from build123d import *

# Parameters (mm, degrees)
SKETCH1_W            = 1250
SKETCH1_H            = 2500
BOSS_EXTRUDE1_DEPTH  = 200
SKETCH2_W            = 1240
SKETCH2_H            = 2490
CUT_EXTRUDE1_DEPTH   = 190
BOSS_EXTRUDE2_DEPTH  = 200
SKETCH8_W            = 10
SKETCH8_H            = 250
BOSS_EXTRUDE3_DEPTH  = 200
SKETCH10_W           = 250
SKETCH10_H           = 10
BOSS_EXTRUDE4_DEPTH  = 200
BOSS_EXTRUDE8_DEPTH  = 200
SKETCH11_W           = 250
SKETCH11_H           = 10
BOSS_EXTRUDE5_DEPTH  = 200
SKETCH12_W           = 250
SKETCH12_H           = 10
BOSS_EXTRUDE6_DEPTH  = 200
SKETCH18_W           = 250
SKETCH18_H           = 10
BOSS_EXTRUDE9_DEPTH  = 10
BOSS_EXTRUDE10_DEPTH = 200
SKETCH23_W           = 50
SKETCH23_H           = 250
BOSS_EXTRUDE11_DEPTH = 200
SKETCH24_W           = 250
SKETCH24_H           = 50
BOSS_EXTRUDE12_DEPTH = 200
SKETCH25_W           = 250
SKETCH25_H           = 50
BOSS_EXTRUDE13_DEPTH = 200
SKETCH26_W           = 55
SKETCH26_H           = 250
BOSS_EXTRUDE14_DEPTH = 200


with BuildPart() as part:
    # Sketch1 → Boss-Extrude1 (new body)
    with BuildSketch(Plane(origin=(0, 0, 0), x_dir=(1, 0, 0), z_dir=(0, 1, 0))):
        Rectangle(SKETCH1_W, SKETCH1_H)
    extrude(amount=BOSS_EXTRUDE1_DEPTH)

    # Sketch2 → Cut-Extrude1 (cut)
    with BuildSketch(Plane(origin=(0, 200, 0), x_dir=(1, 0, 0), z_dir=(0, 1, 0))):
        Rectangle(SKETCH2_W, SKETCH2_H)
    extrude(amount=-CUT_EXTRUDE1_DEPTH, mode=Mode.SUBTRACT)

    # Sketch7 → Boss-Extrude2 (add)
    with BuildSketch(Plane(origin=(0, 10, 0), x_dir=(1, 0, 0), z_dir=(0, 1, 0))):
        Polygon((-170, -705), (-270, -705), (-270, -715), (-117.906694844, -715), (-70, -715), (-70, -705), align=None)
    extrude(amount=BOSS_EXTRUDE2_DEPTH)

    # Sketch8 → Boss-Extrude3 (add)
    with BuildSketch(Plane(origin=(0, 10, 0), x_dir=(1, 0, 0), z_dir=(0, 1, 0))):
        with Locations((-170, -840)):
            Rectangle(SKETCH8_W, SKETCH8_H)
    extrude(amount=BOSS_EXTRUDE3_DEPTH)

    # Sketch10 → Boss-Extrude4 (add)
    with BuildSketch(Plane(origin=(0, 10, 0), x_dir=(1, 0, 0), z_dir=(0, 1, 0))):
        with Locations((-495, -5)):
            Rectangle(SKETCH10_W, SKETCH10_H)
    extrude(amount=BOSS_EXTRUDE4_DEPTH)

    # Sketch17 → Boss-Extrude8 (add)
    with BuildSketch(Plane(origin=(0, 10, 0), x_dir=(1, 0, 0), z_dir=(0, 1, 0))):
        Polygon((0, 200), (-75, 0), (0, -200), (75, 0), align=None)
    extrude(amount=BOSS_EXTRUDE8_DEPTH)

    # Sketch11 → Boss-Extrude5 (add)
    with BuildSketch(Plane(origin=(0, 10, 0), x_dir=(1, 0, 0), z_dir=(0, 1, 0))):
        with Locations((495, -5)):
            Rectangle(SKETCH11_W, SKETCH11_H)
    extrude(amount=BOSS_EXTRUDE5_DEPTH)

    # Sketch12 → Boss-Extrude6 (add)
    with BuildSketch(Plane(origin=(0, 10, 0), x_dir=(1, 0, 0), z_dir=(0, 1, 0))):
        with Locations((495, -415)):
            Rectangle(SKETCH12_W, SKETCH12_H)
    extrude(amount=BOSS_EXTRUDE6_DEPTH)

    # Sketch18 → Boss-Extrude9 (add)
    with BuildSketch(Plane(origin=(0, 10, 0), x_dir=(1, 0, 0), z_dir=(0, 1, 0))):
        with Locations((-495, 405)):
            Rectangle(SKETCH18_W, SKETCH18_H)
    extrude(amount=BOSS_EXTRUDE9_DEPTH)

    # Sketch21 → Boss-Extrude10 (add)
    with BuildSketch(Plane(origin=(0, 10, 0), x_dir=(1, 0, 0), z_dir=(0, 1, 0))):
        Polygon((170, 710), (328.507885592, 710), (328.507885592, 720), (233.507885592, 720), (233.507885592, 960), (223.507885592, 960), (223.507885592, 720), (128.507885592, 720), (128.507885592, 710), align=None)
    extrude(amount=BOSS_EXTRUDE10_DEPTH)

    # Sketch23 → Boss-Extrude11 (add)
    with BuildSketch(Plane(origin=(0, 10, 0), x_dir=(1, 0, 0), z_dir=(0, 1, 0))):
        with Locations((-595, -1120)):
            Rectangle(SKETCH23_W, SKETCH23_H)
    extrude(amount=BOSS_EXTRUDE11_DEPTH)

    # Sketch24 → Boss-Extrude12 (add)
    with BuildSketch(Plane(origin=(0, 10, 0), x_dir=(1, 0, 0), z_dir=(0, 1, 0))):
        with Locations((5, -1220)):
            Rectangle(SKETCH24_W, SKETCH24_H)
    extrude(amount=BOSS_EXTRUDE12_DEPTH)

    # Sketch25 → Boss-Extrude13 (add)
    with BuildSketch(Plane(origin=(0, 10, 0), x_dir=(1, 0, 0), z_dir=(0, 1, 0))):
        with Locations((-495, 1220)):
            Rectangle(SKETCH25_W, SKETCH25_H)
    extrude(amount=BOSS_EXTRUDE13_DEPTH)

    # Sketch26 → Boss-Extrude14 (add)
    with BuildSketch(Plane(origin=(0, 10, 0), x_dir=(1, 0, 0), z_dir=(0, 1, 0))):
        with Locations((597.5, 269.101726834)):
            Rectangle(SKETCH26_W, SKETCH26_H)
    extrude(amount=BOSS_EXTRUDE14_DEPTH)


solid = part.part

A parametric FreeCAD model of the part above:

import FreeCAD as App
import Part
import Sketcher
from FreeCAD import Vector

doc = App.newDocument("Part")
body = doc.addObject("PartDesign::Body", "Body")

# Sketch on XZ plane
sketch1 = doc.addObject("Sketcher::SketchObject", "Sketch")
body.addObject(sketch1)
sketch1.AttachmentSupport = (doc.XZ_Plane, [""])
sketch1.MapMode = "FlatFace"
sketch1.addGeometry([
    Part.LineSegment(Vector(-625, -1250, 0), Vector(-625, 1250, 0)),
    Part.LineSegment(Vector(-625, 1250, 0), Vector(625, 1250, 0)),
    Part.LineSegment(Vector(625, 1250, 0), Vector(625, -1250, 0)),
    Part.LineSegment(Vector(625, -1250, 0), Vector(-625, -1250, 0)),
], False)
sketch1.addConstraint([
    Sketcher.Constraint("Coincident", 0, 2, 1, 1),
    Sketcher.Constraint("Coincident", 1, 2, 2, 1),
    Sketcher.Constraint("Coincident", 2, 2, 3, 1),
    Sketcher.Constraint("Coincident", 3, 2, 0, 1),
    Sketcher.Constraint("Vertical", 0),
    Sketcher.Constraint("Horizontal", 1),
    Sketcher.Constraint("Vertical", 2),
    Sketcher.Constraint("Horizontal", 3),
    Sketcher.Constraint("Symmetric", 0, 2, 2, 2, -1, 1),
    Sketcher.Constraint("DistanceX", 1, 1, 1, 2, 1250.0),
    Sketcher.Constraint("DistanceY", 0, 1, 0, 2, 2500.0),
])
pad1 = doc.addObject("PartDesign::Pad", "Pad")
body.addObject(pad1)
pad1.Profile = sketch1
pad1.Length = 200
pad1.Reversed = True

# Sketch on XZ plane
sketch2 = doc.addObject("Sketcher::SketchObject", "Sketch001")
body.addObject(sketch2)
sketch2.AttachmentSupport = (doc.XZ_Plane, [""])
sketch2.MapMode = "FlatFace"
sketch2.AttachmentOffset = App.Placement(Vector(0, 0, -200), App.Rotation())
sketch2.addGeometry([
    Part.LineSegment(Vector(-620, -1245, 0), Vector(-620, 1245, 0)),
    Part.LineSegment(Vector(-620, 1245, 0), Vector(620, 1245, 0)),
    Part.LineSegment(Vector(620, 1245, 0), Vector(620, -1245, 0)),
    Part.LineSegment(Vector(620, -1245, 0), Vector(-620, -1245, 0)),
], False)
sketch2.addConstraint([
    Sketcher.Constraint("Coincident", 0, 2, 1, 1),
    Sketcher.Constraint("Coincident", 1, 2, 2, 1),
    Sketcher.Constraint("Coincident", 2, 2, 3, 1),
    Sketcher.Constraint("Coincident", 3, 2, 0, 1),
    Sketcher.Constraint("Vertical", 0),
    Sketcher.Constraint("Horizontal", 1),
    Sketcher.Constraint("Vertical", 2),
    Sketcher.Constraint("Horizontal", 3),
    Sketcher.Constraint("Symmetric", 0, 2, 2, 2, -1, 1),
    Sketcher.Constraint("DistanceX", 1, 1, 1, 2, 1240.0),
    Sketcher.Constraint("DistanceY", 0, 1, 0, 2, 2490.0),
])
pocket1 = doc.addObject("PartDesign::Pocket", "Pocket")
body.addObject(pocket1)
pocket1.Profile = sketch2
pocket1.Length = 190
pocket1.Reversed = True

# Sketch on XZ plane
sketch3 = doc.addObject("Sketcher::SketchObject", "Sketch002")
body.addObject(sketch3)
sketch3.AttachmentSupport = (doc.XZ_Plane, [""])
sketch3.MapMode = "FlatFace"
sketch3.AttachmentOffset = App.Placement(Vector(0, 0, -10), App.Rotation())
sketch3.addGeometry([
    Part.LineSegment(Vector(-270, 705, 0), Vector(-270, 715, 0)),
    Part.LineSegment(Vector(-270, 715, 0), Vector(-70, 715, 0)),
    Part.LineSegment(Vector(-70, 715, 0), Vector(-70, 705, 0)),
    Part.LineSegment(Vector(-70, 705, 0), Vector(-270, 705, 0)),
], False)
sketch3.addConstraint([
    Sketcher.Constraint("Coincident", 0, 2, 1, 1),
    Sketcher.Constraint("Coincident", 1, 2, 2, 1),
    Sketcher.Constraint("Coincident", 2, 2, 3, 1),
    Sketcher.Constraint("Coincident", 3, 2, 0, 1),
    Sketcher.Constraint("Vertical", 0),
    Sketcher.Constraint("Horizontal", 1),
    Sketcher.Constraint("Vertical", 2),
    Sketcher.Constraint("Horizontal", 3),
    Sketcher.Constraint("DistanceX", 1, 1, 1, 2, 200.0),
    Sketcher.Constraint("DistanceY", 0, 1, 0, 2, 10.0),
    Sketcher.Constraint("DistanceX", 0, 2, -1, 1, 270.0),
    Sketcher.Constraint("DistanceY", -1, 1, 0, 2, 715.0),
])
pad2 = doc.addObject("PartDesign::Pad", "Pad001")
body.addObject(pad2)
pad2.Profile = sketch3
pad2.Length = 200
pad2.Reversed = True

# Sketch on XZ plane
sketch4 = doc.addObject("Sketcher::SketchObject", "Sketch003")
body.addObject(sketch4)
sketch4.AttachmentSupport = (doc.XZ_Plane, [""])
sketch4.MapMode = "FlatFace"
sketch4.AttachmentOffset = App.Placement(Vector(0, 0, -10), App.Rotation())
sketch4.addGeometry([
    Part.LineSegment(Vector(-175, 715, 0), Vector(-175, 965, 0)),
    Part.LineSegment(Vector(-175, 965, 0), Vector(-165, 965, 0)),
    Part.LineSegment(Vector(-165, 965, 0), Vector(-165, 715, 0)),
    Part.LineSegment(Vector(-165, 715, 0), Vector(-175, 715, 0)),
], False)
sketch4.addConstraint([
    Sketcher.Constraint("Coincident", 0, 2, 1, 1),
    Sketcher.Constraint("Coincident", 1, 2, 2, 1),
    Sketcher.Constraint("Coincident", 2, 2, 3, 1),
    Sketcher.Constraint("Coincident", 3, 2, 0, 1),
    Sketcher.Constraint("Vertical", 0),
    Sketcher.Constraint("Horizontal", 1),
    Sketcher.Constraint("Vertical", 2),
    Sketcher.Constraint("Horizontal", 3),
    Sketcher.Constraint("DistanceX", 1, 1, 1, 2, 10.0),
    Sketcher.Constraint("DistanceY", 0, 1, 0, 2, 250.0),
    Sketcher.Constraint("DistanceX", 0, 2, -1, 1, 175.0),
    Sketcher.Constraint("DistanceY", -1, 1, 0, 2, 965.0),
])
pad3 = doc.addObject("PartDesign::Pad", "Pad002")
body.addObject(pad3)
pad3.Profile = sketch4
pad3.Length = 200
pad3.Reversed = True

# Sketch on XZ plane
sketch5 = doc.addObject("Sketcher::SketchObject", "Sketch004")
body.addObject(sketch5)
sketch5.AttachmentSupport = (doc.XZ_Plane, [""])
sketch5.MapMode = "FlatFace"
sketch5.AttachmentOffset = App.Placement(Vector(0, 0, -10), App.Rotation())
sketch5.addGeometry([
    Part.LineSegment(Vector(-620, 0, 0), Vector(-620, 10, 0)),
    Part.LineSegment(Vector(-620, 10, 0), Vector(-370, 10, 0)),
    Part.LineSegment(Vector(-370, 10, 0), Vector(-370, 0, 0)),
    Part.LineSegment(Vector(-370, 0, 0), Vector(-620, 0, 0)),
], False)
sketch5.addConstraint([
    Sketcher.Constraint("Coincident", 0, 2, 1, 1),
    Sketcher.Constraint("Coincident", 1, 2, 2, 1),
    Sketcher.Constraint("Coincident", 2, 2, 3, 1),
    Sketcher.Constraint("Coincident", 3, 2, 0, 1),
    Sketcher.Constraint("Vertical", 0),
    Sketcher.Constraint("Horizontal", 1),
    Sketcher.Constraint("Vertical", 2),
    Sketcher.Constraint("Horizontal", 3),
    Sketcher.Constraint("PointOnObject", 2, 2, -1),
    Sketcher.Constraint("DistanceX", 1, 1, 1, 2, 250.0),
    Sketcher.Constraint("DistanceY", 0, 1, 0, 2, 10.0),
    Sketcher.Constraint("DistanceX", 0, 2, -1, 1, 620.0),
])
pad4 = doc.addObject("PartDesign::Pad", "Pad003")
body.addObject(pad4)
pad4.Profile = sketch5
pad4.Length = 200
pad4.Reversed = True

# Sketch on XZ plane
sketch6 = doc.addObject("Sketcher::SketchObject", "Sketch005")
body.addObject(sketch6)
sketch6.AttachmentSupport = (doc.XZ_Plane, [""])
sketch6.MapMode = "FlatFace"
sketch6.AttachmentOffset = App.Placement(Vector(0, 0, -10), App.Rotation())
sketch6.addGeometry([
    Part.LineSegment(Vector(0, -200, 0), Vector(-75, 0, 0)),
    Part.LineSegment(Vector(-75, 0, 0), Vector(0, 200, 0)),
    Part.LineSegment(Vector(0, 200, 0), Vector(75, 0, 0)),
    Part.LineSegment(Vector(75, 0, 0), Vector(0, -200, 0)),
], False)
sketch6.addConstraint([
    Sketcher.Constraint("Coincident", 0, 2, 1, 1),
    Sketcher.Constraint("Coincident", 1, 2, 2, 1),
    Sketcher.Constraint("Coincident", 2, 2, 3, 1),
    Sketcher.Constraint("Coincident", 3, 2, 0, 1),
    Sketcher.Constraint("Symmetric", 0, 2, 2, 2, -1, 1),
    Sketcher.Constraint("Symmetric", 1, 2, 3, 2, -1, 1),
    Sketcher.Constraint("PointOnObject", 0, 2, -1),
    Sketcher.Constraint("PointOnObject", 1, 2, -2),
    Sketcher.Constraint("DistanceX", 0, 2, -1, 1, 75.0),
    Sketcher.Constraint("DistanceY", -1, 1, 1, 2, 200.0),
])
pad5 = doc.addObject("PartDesign::Pad", "Pad004")
body.addObject(pad5)
pad5.Profile = sketch6
pad5.Length = 200
pad5.Reversed = True

# Sketch on XZ plane
sketch7 = doc.addObject("Sketcher::SketchObject", "Sketch006")
body.addObject(sketch7)
sketch7.AttachmentSupport = (doc.XZ_Plane, [""])
sketch7.MapMode = "FlatFace"
sketch7.AttachmentOffset = App.Placement(Vector(0, 0, -10), App.Rotation())
sketch7.addGeometry([
    Part.LineSegment(Vector(370, 0, 0), Vector(370, 10, 0)),
    Part.LineSegment(Vector(370, 10, 0), Vector(620, 10, 0)),
    Part.LineSegment(Vector(620, 10, 0), Vector(620, 0, 0)),
    Part.LineSegment(Vector(620, 0, 0), Vector(370, 0, 0)),
], False)
sketch7.addConstraint([
    Sketcher.Constraint("Coincident", 0, 2, 1, 1),
    Sketcher.Constraint("Coincident", 1, 2, 2, 1),
    Sketcher.Constraint("Coincident", 2, 2, 3, 1),
    Sketcher.Constraint("Coincident", 3, 2, 0, 1),
    Sketcher.Constraint("Vertical", 0),
    Sketcher.Constraint("Horizontal", 1),
    Sketcher.Constraint("Vertical", 2),
    Sketcher.Constraint("Horizontal", 3),
    Sketcher.Constraint("PointOnObject", 2, 2, -1),
    Sketcher.Constraint("DistanceX", 1, 1, 1, 2, 250.0),
    Sketcher.Constraint("DistanceY", 0, 1, 0, 2, 10.0),
    Sketcher.Constraint("DistanceX", -1, 1, 0, 2, 370.0),
])
pad6 = doc.addObject("PartDesign::Pad", "Pad005")
body.addObject(pad6)
pad6.Profile = sketch7
pad6.Length = 200
pad6.Reversed = True

# Sketch on XZ plane
sketch8 = doc.addObject("Sketcher::SketchObject", "Sketch007")
body.addObject(sketch8)
sketch8.AttachmentSupport = (doc.XZ_Plane, [""])
sketch8.MapMode = "FlatFace"
sketch8.AttachmentOffset = App.Placement(Vector(0, 0, -10), App.Rotation())
sketch8.addGeometry([
    Part.LineSegment(Vector(370, 410, 0), Vector(370, 420, 0)),
    Part.LineSegment(Vector(370, 420, 0), Vector(620, 420, 0)),
    Part.LineSegment(Vector(620, 420, 0), Vector(620, 410, 0)),
    Part.LineSegment(Vector(620, 410, 0), Vector(370, 410, 0)),
], False)
sketch8.addConstraint([
    Sketcher.Constraint("Coincident", 0, 2, 1, 1),
    Sketcher.Constraint("Coincident", 1, 2, 2, 1),
    Sketcher.Constraint("Coincident", 2, 2, 3, 1),
    Sketcher.Constraint("Coincident", 3, 2, 0, 1),
    Sketcher.Constraint("Vertical", 0),
    Sketcher.Constraint("Horizontal", 1),
    Sketcher.Constraint("Vertical", 2),
    Sketcher.Constraint("Horizontal", 3),
    Sketcher.Constraint("DistanceX", 1, 1, 1, 2, 250.0),
    Sketcher.Constraint("DistanceY", 0, 1, 0, 2, 10.0),
    Sketcher.Constraint("DistanceX", -1, 1, 0, 2, 370.0),
    Sketcher.Constraint("DistanceY", -1, 1, 0, 2, 420.0),
])
pad7 = doc.addObject("PartDesign::Pad", "Pad006")
body.addObject(pad7)
pad7.Profile = sketch8
pad7.Length = 200
pad7.Reversed = True

# Sketch on XZ plane
sketch9 = doc.addObject("Sketcher::SketchObject", "Sketch008")
body.addObject(sketch9)
sketch9.AttachmentSupport = (doc.XZ_Plane, [""])
sketch9.MapMode = "FlatFace"
sketch9.AttachmentOffset = App.Placement(Vector(0, 0, -10), App.Rotation())
sketch9.addGeometry([
    Part.LineSegment(Vector(-620, -410, 0), Vector(-620, -400, 0)),
    Part.LineSegment(Vector(-620, -400, 0), Vector(-370, -400, 0)),
    Part.LineSegment(Vector(-370, -400, 0), Vector(-370, -410, 0)),
    Part.LineSegment(Vector(-370, -410, 0), Vector(-620, -410, 0)),
], False)
sketch9.addConstraint([
    Sketcher.Constraint("Coincident", 0, 2, 1, 1),
    Sketcher.Constraint("Coincident", 1, 2, 2, 1),
    Sketcher.Constraint("Coincident", 2, 2, 3, 1),
    Sketcher.Constraint("Coincident", 3, 2, 0, 1),
    Sketcher.Constraint("Vertical", 0),
    Sketcher.Constraint("Horizontal", 1),
    Sketcher.Constraint("Vertical", 2),
    Sketcher.Constraint("Horizontal", 3),
    Sketcher.Constraint("DistanceX", 1, 1, 1, 2, 250.0),
    Sketcher.Constraint("DistanceY", 0, 1, 0, 2, 10.0),
    Sketcher.Constraint("DistanceX", 0, 2, -1, 1, 620.0),
    Sketcher.Constraint("DistanceY", 0, 2, -1, 1, 400.0),
])
pad8 = doc.addObject("PartDesign::Pad", "Pad007")
body.addObject(pad8)
pad8.Profile = sketch9
pad8.Length = 10
pad8.Reversed = True

# Sketch on XZ plane
sketch10 = doc.addObject("Sketcher::SketchObject", "Sketch009")
body.addObject(sketch10)
sketch10.AttachmentSupport = (doc.XZ_Plane, [""])
sketch10.MapMode = "FlatFace"
sketch10.AttachmentOffset = App.Placement(Vector(0, 0, -10), App.Rotation())
sketch10.addGeometry([
    Part.LineSegment(Vector(328.507886, -710, 0), Vector(328.507886, -720, 0)),  # 0
    Part.LineSegment(Vector(328.507886, -720, 0), Vector(233.507886, -720, 0)),  # 1
    Part.LineSegment(Vector(233.507886, -720, 0), Vector(233.507886, -960, 0)),  # 2
    Part.LineSegment(Vector(233.507886, -960, 0), Vector(223.507886, -960, 0)),  # 3
    Part.LineSegment(Vector(223.507886, -960, 0), Vector(223.507886, -720, 0)),  # 4
    Part.LineSegment(Vector(223.507886, -720, 0), Vector(128.507886, -720, 0)),  # 5
    Part.LineSegment(Vector(128.507886, -720, 0), Vector(128.507886, -710, 0)),  # 6
    Part.LineSegment(Vector(128.507886, -710, 0), Vector(328.507886, -710, 0)),  # 7
], False)
sketch10.addConstraint([
    Sketcher.Constraint("Coincident", 0, 2, 1, 1),
    Sketcher.Constraint("Coincident", 1, 2, 2, 1),
    Sketcher.Constraint("Coincident", 2, 2, 3, 1),
    Sketcher.Constraint("Coincident", 3, 2, 4, 1),
    Sketcher.Constraint("Coincident", 4, 2, 5, 1),
    Sketcher.Constraint("Coincident", 5, 2, 6, 1),
    Sketcher.Constraint("Coincident", 6, 2, 7, 1),
    Sketcher.Constraint("Coincident", 7, 2, 0, 1),
    Sketcher.Constraint("Vertical", 0),
    Sketcher.Constraint("Horizontal", 1),
    Sketcher.Constraint("Vertical", 2),
    Sketcher.Constraint("Horizontal", 3),
    Sketcher.Constraint("Vertical", 4),
    Sketcher.Constraint("Horizontal", 5),
    Sketcher.Constraint("Vertical", 6),
    Sketcher.Constraint("Horizontal", 7),
    Sketcher.Constraint("Horizontal", 1, 2, 4, 2),
    Sketcher.Constraint("Equal", 1, 5),
    Sketcher.Constraint("Equal", 3, 0),
    Sketcher.Constraint("DistanceX", 1, 2, 1, 1, 95.0),
    Sketcher.Constraint("DistanceX", 3, 2, 3, 1, 10.0),
    Sketcher.Constraint("DistanceY", 2, 2, 2, 1, 240.0),
    Sketcher.Constraint("DistanceY", 0, 2, -1, 1, 720.0),
    Sketcher.Constraint("DistanceX", -1, 1, 0, 2, 328.507886),
])
pad9 = doc.addObject("PartDesign::Pad", "Pad008")
body.addObject(pad9)
pad9.Profile = sketch10
pad9.Length = 200
pad9.Reversed = True

# Sketch on XZ plane
sketch11 = doc.addObject("Sketcher::SketchObject", "Sketch010")
body.addObject(sketch11)
sketch11.AttachmentSupport = (doc.XZ_Plane, [""])
sketch11.MapMode = "FlatFace"
sketch11.AttachmentOffset = App.Placement(Vector(0, 0, -10), App.Rotation())
sketch11.addGeometry([
    Part.LineSegment(Vector(-620, 995, 0), Vector(-620, 1245, 0)),
    Part.LineSegment(Vector(-620, 1245, 0), Vector(-570, 1245, 0)),
    Part.LineSegment(Vector(-570, 1245, 0), Vector(-570, 995, 0)),
    Part.LineSegment(Vector(-570, 995, 0), Vector(-620, 995, 0)),
], False)
sketch11.addConstraint([
    Sketcher.Constraint("Coincident", 0, 2, 1, 1),
    Sketcher.Constraint("Coincident", 1, 2, 2, 1),
    Sketcher.Constraint("Coincident", 2, 2, 3, 1),
    Sketcher.Constraint("Coincident", 3, 2, 0, 1),
    Sketcher.Constraint("Vertical", 0),
    Sketcher.Constraint("Horizontal", 1),
    Sketcher.Constraint("Vertical", 2),
    Sketcher.Constraint("Horizontal", 3),
    Sketcher.Constraint("DistanceX", 1, 1, 1, 2, 50.0),
    Sketcher.Constraint("DistanceY", 0, 1, 0, 2, 250.0),
    Sketcher.Constraint("DistanceX", 0, 2, -1, 1, 620.0),
    Sketcher.Constraint("DistanceY", -1, 1, 0, 2, 1245.0),
])
pad10 = doc.addObject("PartDesign::Pad", "Pad009")
body.addObject(pad10)
pad10.Profile = sketch11
pad10.Length = 200
pad10.Reversed = True

# Sketch on XZ plane
sketch12 = doc.addObject("Sketcher::SketchObject", "Sketch011")
body.addObject(sketch12)
sketch12.AttachmentSupport = (doc.XZ_Plane, [""])
sketch12.MapMode = "FlatFace"
sketch12.AttachmentOffset = App.Placement(Vector(0, 0, -10), App.Rotation())
sketch12.addGeometry([
    Part.LineSegment(Vector(-120, 1195, 0), Vector(-120, 1245, 0)),
    Part.LineSegment(Vector(-120, 1245, 0), Vector(130, 1245, 0)),
    Part.LineSegment(Vector(130, 1245, 0), Vector(130, 1195, 0)),
    Part.LineSegment(Vector(130, 1195, 0), Vector(-120, 1195, 0)),
], False)
sketch12.addConstraint([
    Sketcher.Constraint("Coincident", 0, 2, 1, 1),
    Sketcher.Constraint("Coincident", 1, 2, 2, 1),
    Sketcher.Constraint("Coincident", 2, 2, 3, 1),
    Sketcher.Constraint("Coincident", 3, 2, 0, 1),
    Sketcher.Constraint("Vertical", 0),
    Sketcher.Constraint("Horizontal", 1),
    Sketcher.Constraint("Vertical", 2),
    Sketcher.Constraint("Horizontal", 3),
    Sketcher.Constraint("DistanceX", 1, 1, 1, 2, 250.0),
    Sketcher.Constraint("DistanceY", 0, 1, 0, 2, 50.0),
    Sketcher.Constraint("DistanceX", 0, 2, -1, 1, 120.0),
    Sketcher.Constraint("DistanceY", -1, 1, 0, 2, 1245.0),
])
pad11 = doc.addObject("PartDesign::Pad", "Pad010")
body.addObject(pad11)
pad11.Profile = sketch12
pad11.Length = 200
pad11.Reversed = True

# Sketch on XZ plane
sketch13 = doc.addObject("Sketcher::SketchObject", "Sketch012")
body.addObject(sketch13)
sketch13.AttachmentSupport = (doc.XZ_Plane, [""])
sketch13.MapMode = "FlatFace"
sketch13.AttachmentOffset = App.Placement(Vector(0, 0, -10), App.Rotation())
sketch13.addGeometry([
    Part.LineSegment(Vector(-620, -1245, 0), Vector(-620, -1195, 0)),
    Part.LineSegment(Vector(-620, -1195, 0), Vector(-370, -1195, 0)),
    Part.LineSegment(Vector(-370, -1195, 0), Vector(-370, -1245, 0)),
    Part.LineSegment(Vector(-370, -1245, 0), Vector(-620, -1245, 0)),
], False)
sketch13.addConstraint([
    Sketcher.Constraint("Coincident", 0, 2, 1, 1),
    Sketcher.Constraint("Coincident", 1, 2, 2, 1),
    Sketcher.Constraint("Coincident", 2, 2, 3, 1),
    Sketcher.Constraint("Coincident", 3, 2, 0, 1),
    Sketcher.Constraint("Vertical", 0),
    Sketcher.Constraint("Horizontal", 1),
    Sketcher.Constraint("Vertical", 2),
    Sketcher.Constraint("Horizontal", 3),
    Sketcher.Constraint("DistanceX", 1, 1, 1, 2, 250.0),
    Sketcher.Constraint("DistanceY", 0, 1, 0, 2, 50.0),
    Sketcher.Constraint("DistanceX", 0, 2, -1, 1, 620.0),
    Sketcher.Constraint("DistanceY", 0, 2, -1, 1, 1195.0),
])
pad12 = doc.addObject("PartDesign::Pad", "Pad011")
body.addObject(pad12)
pad12.Profile = sketch13
pad12.Length = 200
pad12.Reversed = True

# Sketch on XZ plane
sketch14 = doc.addObject("Sketcher::SketchObject", "Sketch013")
body.addObject(sketch14)
sketch14.AttachmentSupport = (doc.XZ_Plane, [""])
sketch14.MapMode = "FlatFace"
sketch14.AttachmentOffset = App.Placement(Vector(0, 0, -10), App.Rotation())
sketch14.addGeometry([
    Part.LineSegment(Vector(570, -394.101727, 0), Vector(570, -144.101727, 0)),
    Part.LineSegment(Vector(570, -144.101727, 0), Vector(625, -144.101727, 0)),
    Part.LineSegment(Vector(625, -144.101727, 0), Vector(625, -394.101727, 0)),
    Part.LineSegment(Vector(625, -394.101727, 0), Vector(570, -394.101727, 0)),
], False)
sketch14.addConstraint([
    Sketcher.Constraint("Coincident", 0, 2, 1, 1),
    Sketcher.Constraint("Coincident", 1, 2, 2, 1),
    Sketcher.Constraint("Coincident", 2, 2, 3, 1),
    Sketcher.Constraint("Coincident", 3, 2, 0, 1),
    Sketcher.Constraint("Vertical", 0),
    Sketcher.Constraint("Horizontal", 1),
    Sketcher.Constraint("Vertical", 2),
    Sketcher.Constraint("Horizontal", 3),
    Sketcher.Constraint("DistanceX", 1, 1, 1, 2, 55.0),
    Sketcher.Constraint("DistanceY", 0, 1, 0, 2, 250.0),
    Sketcher.Constraint("DistanceX", -1, 1, 0, 2, 570.0),
    Sketcher.Constraint("DistanceY", 0, 2, -1, 1, 144.101727),
])
pad13 = doc.addObject("PartDesign::Pad", "Pad012")
body.addObject(pad13)
pad13.Profile = sketch14
pad13.Length = 200
pad13.Reversed = True

doc.recompute()
